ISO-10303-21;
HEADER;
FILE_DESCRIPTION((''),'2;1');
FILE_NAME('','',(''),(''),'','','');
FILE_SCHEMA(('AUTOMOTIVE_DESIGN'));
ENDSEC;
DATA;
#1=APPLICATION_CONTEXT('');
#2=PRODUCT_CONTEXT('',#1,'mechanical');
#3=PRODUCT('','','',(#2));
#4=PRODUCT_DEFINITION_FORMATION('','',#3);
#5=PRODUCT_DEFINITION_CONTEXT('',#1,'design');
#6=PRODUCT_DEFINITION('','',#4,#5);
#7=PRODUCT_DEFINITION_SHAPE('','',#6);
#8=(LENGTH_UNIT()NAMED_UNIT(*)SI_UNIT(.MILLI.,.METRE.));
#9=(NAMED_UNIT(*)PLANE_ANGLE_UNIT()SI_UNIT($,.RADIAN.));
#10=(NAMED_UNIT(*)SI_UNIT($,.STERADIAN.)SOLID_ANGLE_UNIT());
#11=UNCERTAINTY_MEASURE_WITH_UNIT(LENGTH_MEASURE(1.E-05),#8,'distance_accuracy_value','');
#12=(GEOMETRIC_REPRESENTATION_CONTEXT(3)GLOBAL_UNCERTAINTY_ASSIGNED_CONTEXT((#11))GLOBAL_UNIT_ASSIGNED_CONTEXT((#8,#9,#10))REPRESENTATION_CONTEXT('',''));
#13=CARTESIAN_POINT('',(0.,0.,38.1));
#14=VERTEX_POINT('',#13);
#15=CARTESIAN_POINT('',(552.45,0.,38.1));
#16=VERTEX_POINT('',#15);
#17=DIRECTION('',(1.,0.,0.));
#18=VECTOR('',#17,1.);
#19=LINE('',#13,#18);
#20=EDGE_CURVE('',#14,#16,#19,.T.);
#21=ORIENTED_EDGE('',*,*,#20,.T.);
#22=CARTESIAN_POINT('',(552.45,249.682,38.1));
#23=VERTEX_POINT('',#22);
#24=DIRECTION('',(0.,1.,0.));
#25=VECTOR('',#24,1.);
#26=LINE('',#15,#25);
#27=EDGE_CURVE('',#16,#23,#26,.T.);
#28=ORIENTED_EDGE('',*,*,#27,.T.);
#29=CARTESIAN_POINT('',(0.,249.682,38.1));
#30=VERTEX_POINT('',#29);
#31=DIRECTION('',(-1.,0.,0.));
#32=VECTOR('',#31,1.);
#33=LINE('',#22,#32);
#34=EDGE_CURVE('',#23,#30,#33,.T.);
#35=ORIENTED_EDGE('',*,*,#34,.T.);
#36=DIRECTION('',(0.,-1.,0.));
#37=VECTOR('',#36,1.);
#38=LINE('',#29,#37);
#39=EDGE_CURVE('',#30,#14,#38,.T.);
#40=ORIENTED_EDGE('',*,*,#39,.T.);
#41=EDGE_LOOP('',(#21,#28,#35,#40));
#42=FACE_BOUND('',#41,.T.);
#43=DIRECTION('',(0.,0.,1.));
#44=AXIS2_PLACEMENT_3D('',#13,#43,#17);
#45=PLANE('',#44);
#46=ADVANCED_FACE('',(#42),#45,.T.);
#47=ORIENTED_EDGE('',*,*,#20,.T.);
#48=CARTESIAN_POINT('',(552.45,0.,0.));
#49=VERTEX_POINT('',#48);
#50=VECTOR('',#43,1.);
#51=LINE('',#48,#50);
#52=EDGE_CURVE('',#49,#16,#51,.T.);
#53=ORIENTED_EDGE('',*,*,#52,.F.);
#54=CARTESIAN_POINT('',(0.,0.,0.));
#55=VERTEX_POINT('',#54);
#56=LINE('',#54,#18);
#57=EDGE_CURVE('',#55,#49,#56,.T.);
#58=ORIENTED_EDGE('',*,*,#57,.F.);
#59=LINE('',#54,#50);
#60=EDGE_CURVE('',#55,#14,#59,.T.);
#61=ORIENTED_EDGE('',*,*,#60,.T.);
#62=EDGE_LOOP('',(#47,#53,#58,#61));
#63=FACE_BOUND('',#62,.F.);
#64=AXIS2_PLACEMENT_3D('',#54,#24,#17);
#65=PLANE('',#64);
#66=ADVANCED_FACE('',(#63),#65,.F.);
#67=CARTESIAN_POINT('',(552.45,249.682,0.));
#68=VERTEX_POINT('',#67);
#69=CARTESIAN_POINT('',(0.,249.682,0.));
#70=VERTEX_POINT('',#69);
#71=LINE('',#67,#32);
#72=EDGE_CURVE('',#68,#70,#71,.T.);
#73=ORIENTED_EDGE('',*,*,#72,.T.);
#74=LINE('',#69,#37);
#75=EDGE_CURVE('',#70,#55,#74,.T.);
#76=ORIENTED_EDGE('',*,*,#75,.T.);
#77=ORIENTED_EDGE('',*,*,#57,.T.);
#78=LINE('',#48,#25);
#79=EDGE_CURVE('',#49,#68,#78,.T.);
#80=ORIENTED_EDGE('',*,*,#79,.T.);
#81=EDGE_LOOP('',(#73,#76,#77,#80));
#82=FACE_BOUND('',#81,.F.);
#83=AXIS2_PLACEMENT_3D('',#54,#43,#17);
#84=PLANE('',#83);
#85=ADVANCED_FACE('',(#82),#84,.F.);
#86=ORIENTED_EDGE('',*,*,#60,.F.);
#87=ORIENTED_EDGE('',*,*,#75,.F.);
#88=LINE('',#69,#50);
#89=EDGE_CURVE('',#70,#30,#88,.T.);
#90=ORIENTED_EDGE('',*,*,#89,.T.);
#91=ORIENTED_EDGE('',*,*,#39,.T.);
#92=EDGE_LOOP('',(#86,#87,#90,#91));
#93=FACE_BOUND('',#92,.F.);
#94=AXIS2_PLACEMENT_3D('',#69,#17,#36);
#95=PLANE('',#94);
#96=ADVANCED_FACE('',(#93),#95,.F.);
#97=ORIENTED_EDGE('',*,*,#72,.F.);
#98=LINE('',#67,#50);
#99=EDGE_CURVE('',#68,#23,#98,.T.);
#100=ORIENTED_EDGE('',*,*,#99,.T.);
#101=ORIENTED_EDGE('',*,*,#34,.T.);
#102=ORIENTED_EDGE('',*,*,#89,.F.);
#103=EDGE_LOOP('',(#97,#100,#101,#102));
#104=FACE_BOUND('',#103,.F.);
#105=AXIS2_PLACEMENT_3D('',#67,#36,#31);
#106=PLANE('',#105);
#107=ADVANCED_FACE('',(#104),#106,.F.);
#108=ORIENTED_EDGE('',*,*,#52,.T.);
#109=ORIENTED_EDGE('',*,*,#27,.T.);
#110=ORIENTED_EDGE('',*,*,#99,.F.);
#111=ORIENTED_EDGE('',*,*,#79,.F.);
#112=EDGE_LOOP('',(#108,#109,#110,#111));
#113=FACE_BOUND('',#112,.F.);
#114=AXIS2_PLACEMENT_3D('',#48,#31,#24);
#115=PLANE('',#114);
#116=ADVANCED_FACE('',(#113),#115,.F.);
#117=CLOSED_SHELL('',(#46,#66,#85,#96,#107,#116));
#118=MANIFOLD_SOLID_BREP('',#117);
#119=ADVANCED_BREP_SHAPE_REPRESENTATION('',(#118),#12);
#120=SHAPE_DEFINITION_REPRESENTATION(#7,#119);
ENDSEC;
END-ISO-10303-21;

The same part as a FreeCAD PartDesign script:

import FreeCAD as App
import Part
import Sketcher

V = App.Vector
Q = App.Units.Quantity

doc = App.newDocument("Part")
body = doc.addObject("PartDesign::Body", "Body")

sketch1 = body.newObject("Sketcher::SketchObject", "Sketch")
sketch1.AttachmentSupport = (doc.getObject("XY_Plane"), [""])
sketch1.MapMode = "FlatFace"
sketch1.addGeometry(Part.LineSegment(V(0, 249.682, 0), V(0, 0, 0)), False)
sketch1.addGeometry(Part.LineSegment(V(0, 0, 0), V(552.45, 0, 0)), False)
sketch1.addGeometry(Part.LineSegment(V(552.45, 0, 0), V(552.45, 249.682, 0)), False)
sketch1.addGeometry(Part.LineSegment(V(552.45, 249.682, 0), V(0, 249.682, 0)), False)
sketch1.addConstraint(Sketcher.Constraint("Coincident", 0, 2, 1, 1))
sketch1.addConstraint(Sketcher.Constraint("Coincident", 1, 2, 2, 1))
sketch1.addConstraint(Sketcher.Constraint("Coincident", 2, 2, 3, 1))
sketch1.addConstraint(Sketcher.Constraint("Coincident", 3, 2, 0, 1))
sketch1.addConstraint(Sketcher.Constraint("Vertical", 0))
sketch1.addConstraint(Sketcher.Constraint("Horizontal", 1))
sketch1.addConstraint(Sketcher.Constraint("Vertical", 2))
sketch1.addConstraint(Sketcher.Constraint("Horizontal", 3))
sketch1.addConstraint(Sketcher.Constraint("Coincident", 0, 2, -1, 1))
sketch1.addConstraint(Sketcher.Constraint("DistanceX", 1, 1, 1, 2, Q("21.75 in")))
sketch1.addConstraint(Sketcher.Constraint("DistanceY", 0, 2, 0, 1, Q("9.83 in")))
pad1 = body.newObject("PartDesign::Pad", "Pad")
pad1.Profile = sketch1
pad1.Length = Q("1.5 in")

doc.recompute()
